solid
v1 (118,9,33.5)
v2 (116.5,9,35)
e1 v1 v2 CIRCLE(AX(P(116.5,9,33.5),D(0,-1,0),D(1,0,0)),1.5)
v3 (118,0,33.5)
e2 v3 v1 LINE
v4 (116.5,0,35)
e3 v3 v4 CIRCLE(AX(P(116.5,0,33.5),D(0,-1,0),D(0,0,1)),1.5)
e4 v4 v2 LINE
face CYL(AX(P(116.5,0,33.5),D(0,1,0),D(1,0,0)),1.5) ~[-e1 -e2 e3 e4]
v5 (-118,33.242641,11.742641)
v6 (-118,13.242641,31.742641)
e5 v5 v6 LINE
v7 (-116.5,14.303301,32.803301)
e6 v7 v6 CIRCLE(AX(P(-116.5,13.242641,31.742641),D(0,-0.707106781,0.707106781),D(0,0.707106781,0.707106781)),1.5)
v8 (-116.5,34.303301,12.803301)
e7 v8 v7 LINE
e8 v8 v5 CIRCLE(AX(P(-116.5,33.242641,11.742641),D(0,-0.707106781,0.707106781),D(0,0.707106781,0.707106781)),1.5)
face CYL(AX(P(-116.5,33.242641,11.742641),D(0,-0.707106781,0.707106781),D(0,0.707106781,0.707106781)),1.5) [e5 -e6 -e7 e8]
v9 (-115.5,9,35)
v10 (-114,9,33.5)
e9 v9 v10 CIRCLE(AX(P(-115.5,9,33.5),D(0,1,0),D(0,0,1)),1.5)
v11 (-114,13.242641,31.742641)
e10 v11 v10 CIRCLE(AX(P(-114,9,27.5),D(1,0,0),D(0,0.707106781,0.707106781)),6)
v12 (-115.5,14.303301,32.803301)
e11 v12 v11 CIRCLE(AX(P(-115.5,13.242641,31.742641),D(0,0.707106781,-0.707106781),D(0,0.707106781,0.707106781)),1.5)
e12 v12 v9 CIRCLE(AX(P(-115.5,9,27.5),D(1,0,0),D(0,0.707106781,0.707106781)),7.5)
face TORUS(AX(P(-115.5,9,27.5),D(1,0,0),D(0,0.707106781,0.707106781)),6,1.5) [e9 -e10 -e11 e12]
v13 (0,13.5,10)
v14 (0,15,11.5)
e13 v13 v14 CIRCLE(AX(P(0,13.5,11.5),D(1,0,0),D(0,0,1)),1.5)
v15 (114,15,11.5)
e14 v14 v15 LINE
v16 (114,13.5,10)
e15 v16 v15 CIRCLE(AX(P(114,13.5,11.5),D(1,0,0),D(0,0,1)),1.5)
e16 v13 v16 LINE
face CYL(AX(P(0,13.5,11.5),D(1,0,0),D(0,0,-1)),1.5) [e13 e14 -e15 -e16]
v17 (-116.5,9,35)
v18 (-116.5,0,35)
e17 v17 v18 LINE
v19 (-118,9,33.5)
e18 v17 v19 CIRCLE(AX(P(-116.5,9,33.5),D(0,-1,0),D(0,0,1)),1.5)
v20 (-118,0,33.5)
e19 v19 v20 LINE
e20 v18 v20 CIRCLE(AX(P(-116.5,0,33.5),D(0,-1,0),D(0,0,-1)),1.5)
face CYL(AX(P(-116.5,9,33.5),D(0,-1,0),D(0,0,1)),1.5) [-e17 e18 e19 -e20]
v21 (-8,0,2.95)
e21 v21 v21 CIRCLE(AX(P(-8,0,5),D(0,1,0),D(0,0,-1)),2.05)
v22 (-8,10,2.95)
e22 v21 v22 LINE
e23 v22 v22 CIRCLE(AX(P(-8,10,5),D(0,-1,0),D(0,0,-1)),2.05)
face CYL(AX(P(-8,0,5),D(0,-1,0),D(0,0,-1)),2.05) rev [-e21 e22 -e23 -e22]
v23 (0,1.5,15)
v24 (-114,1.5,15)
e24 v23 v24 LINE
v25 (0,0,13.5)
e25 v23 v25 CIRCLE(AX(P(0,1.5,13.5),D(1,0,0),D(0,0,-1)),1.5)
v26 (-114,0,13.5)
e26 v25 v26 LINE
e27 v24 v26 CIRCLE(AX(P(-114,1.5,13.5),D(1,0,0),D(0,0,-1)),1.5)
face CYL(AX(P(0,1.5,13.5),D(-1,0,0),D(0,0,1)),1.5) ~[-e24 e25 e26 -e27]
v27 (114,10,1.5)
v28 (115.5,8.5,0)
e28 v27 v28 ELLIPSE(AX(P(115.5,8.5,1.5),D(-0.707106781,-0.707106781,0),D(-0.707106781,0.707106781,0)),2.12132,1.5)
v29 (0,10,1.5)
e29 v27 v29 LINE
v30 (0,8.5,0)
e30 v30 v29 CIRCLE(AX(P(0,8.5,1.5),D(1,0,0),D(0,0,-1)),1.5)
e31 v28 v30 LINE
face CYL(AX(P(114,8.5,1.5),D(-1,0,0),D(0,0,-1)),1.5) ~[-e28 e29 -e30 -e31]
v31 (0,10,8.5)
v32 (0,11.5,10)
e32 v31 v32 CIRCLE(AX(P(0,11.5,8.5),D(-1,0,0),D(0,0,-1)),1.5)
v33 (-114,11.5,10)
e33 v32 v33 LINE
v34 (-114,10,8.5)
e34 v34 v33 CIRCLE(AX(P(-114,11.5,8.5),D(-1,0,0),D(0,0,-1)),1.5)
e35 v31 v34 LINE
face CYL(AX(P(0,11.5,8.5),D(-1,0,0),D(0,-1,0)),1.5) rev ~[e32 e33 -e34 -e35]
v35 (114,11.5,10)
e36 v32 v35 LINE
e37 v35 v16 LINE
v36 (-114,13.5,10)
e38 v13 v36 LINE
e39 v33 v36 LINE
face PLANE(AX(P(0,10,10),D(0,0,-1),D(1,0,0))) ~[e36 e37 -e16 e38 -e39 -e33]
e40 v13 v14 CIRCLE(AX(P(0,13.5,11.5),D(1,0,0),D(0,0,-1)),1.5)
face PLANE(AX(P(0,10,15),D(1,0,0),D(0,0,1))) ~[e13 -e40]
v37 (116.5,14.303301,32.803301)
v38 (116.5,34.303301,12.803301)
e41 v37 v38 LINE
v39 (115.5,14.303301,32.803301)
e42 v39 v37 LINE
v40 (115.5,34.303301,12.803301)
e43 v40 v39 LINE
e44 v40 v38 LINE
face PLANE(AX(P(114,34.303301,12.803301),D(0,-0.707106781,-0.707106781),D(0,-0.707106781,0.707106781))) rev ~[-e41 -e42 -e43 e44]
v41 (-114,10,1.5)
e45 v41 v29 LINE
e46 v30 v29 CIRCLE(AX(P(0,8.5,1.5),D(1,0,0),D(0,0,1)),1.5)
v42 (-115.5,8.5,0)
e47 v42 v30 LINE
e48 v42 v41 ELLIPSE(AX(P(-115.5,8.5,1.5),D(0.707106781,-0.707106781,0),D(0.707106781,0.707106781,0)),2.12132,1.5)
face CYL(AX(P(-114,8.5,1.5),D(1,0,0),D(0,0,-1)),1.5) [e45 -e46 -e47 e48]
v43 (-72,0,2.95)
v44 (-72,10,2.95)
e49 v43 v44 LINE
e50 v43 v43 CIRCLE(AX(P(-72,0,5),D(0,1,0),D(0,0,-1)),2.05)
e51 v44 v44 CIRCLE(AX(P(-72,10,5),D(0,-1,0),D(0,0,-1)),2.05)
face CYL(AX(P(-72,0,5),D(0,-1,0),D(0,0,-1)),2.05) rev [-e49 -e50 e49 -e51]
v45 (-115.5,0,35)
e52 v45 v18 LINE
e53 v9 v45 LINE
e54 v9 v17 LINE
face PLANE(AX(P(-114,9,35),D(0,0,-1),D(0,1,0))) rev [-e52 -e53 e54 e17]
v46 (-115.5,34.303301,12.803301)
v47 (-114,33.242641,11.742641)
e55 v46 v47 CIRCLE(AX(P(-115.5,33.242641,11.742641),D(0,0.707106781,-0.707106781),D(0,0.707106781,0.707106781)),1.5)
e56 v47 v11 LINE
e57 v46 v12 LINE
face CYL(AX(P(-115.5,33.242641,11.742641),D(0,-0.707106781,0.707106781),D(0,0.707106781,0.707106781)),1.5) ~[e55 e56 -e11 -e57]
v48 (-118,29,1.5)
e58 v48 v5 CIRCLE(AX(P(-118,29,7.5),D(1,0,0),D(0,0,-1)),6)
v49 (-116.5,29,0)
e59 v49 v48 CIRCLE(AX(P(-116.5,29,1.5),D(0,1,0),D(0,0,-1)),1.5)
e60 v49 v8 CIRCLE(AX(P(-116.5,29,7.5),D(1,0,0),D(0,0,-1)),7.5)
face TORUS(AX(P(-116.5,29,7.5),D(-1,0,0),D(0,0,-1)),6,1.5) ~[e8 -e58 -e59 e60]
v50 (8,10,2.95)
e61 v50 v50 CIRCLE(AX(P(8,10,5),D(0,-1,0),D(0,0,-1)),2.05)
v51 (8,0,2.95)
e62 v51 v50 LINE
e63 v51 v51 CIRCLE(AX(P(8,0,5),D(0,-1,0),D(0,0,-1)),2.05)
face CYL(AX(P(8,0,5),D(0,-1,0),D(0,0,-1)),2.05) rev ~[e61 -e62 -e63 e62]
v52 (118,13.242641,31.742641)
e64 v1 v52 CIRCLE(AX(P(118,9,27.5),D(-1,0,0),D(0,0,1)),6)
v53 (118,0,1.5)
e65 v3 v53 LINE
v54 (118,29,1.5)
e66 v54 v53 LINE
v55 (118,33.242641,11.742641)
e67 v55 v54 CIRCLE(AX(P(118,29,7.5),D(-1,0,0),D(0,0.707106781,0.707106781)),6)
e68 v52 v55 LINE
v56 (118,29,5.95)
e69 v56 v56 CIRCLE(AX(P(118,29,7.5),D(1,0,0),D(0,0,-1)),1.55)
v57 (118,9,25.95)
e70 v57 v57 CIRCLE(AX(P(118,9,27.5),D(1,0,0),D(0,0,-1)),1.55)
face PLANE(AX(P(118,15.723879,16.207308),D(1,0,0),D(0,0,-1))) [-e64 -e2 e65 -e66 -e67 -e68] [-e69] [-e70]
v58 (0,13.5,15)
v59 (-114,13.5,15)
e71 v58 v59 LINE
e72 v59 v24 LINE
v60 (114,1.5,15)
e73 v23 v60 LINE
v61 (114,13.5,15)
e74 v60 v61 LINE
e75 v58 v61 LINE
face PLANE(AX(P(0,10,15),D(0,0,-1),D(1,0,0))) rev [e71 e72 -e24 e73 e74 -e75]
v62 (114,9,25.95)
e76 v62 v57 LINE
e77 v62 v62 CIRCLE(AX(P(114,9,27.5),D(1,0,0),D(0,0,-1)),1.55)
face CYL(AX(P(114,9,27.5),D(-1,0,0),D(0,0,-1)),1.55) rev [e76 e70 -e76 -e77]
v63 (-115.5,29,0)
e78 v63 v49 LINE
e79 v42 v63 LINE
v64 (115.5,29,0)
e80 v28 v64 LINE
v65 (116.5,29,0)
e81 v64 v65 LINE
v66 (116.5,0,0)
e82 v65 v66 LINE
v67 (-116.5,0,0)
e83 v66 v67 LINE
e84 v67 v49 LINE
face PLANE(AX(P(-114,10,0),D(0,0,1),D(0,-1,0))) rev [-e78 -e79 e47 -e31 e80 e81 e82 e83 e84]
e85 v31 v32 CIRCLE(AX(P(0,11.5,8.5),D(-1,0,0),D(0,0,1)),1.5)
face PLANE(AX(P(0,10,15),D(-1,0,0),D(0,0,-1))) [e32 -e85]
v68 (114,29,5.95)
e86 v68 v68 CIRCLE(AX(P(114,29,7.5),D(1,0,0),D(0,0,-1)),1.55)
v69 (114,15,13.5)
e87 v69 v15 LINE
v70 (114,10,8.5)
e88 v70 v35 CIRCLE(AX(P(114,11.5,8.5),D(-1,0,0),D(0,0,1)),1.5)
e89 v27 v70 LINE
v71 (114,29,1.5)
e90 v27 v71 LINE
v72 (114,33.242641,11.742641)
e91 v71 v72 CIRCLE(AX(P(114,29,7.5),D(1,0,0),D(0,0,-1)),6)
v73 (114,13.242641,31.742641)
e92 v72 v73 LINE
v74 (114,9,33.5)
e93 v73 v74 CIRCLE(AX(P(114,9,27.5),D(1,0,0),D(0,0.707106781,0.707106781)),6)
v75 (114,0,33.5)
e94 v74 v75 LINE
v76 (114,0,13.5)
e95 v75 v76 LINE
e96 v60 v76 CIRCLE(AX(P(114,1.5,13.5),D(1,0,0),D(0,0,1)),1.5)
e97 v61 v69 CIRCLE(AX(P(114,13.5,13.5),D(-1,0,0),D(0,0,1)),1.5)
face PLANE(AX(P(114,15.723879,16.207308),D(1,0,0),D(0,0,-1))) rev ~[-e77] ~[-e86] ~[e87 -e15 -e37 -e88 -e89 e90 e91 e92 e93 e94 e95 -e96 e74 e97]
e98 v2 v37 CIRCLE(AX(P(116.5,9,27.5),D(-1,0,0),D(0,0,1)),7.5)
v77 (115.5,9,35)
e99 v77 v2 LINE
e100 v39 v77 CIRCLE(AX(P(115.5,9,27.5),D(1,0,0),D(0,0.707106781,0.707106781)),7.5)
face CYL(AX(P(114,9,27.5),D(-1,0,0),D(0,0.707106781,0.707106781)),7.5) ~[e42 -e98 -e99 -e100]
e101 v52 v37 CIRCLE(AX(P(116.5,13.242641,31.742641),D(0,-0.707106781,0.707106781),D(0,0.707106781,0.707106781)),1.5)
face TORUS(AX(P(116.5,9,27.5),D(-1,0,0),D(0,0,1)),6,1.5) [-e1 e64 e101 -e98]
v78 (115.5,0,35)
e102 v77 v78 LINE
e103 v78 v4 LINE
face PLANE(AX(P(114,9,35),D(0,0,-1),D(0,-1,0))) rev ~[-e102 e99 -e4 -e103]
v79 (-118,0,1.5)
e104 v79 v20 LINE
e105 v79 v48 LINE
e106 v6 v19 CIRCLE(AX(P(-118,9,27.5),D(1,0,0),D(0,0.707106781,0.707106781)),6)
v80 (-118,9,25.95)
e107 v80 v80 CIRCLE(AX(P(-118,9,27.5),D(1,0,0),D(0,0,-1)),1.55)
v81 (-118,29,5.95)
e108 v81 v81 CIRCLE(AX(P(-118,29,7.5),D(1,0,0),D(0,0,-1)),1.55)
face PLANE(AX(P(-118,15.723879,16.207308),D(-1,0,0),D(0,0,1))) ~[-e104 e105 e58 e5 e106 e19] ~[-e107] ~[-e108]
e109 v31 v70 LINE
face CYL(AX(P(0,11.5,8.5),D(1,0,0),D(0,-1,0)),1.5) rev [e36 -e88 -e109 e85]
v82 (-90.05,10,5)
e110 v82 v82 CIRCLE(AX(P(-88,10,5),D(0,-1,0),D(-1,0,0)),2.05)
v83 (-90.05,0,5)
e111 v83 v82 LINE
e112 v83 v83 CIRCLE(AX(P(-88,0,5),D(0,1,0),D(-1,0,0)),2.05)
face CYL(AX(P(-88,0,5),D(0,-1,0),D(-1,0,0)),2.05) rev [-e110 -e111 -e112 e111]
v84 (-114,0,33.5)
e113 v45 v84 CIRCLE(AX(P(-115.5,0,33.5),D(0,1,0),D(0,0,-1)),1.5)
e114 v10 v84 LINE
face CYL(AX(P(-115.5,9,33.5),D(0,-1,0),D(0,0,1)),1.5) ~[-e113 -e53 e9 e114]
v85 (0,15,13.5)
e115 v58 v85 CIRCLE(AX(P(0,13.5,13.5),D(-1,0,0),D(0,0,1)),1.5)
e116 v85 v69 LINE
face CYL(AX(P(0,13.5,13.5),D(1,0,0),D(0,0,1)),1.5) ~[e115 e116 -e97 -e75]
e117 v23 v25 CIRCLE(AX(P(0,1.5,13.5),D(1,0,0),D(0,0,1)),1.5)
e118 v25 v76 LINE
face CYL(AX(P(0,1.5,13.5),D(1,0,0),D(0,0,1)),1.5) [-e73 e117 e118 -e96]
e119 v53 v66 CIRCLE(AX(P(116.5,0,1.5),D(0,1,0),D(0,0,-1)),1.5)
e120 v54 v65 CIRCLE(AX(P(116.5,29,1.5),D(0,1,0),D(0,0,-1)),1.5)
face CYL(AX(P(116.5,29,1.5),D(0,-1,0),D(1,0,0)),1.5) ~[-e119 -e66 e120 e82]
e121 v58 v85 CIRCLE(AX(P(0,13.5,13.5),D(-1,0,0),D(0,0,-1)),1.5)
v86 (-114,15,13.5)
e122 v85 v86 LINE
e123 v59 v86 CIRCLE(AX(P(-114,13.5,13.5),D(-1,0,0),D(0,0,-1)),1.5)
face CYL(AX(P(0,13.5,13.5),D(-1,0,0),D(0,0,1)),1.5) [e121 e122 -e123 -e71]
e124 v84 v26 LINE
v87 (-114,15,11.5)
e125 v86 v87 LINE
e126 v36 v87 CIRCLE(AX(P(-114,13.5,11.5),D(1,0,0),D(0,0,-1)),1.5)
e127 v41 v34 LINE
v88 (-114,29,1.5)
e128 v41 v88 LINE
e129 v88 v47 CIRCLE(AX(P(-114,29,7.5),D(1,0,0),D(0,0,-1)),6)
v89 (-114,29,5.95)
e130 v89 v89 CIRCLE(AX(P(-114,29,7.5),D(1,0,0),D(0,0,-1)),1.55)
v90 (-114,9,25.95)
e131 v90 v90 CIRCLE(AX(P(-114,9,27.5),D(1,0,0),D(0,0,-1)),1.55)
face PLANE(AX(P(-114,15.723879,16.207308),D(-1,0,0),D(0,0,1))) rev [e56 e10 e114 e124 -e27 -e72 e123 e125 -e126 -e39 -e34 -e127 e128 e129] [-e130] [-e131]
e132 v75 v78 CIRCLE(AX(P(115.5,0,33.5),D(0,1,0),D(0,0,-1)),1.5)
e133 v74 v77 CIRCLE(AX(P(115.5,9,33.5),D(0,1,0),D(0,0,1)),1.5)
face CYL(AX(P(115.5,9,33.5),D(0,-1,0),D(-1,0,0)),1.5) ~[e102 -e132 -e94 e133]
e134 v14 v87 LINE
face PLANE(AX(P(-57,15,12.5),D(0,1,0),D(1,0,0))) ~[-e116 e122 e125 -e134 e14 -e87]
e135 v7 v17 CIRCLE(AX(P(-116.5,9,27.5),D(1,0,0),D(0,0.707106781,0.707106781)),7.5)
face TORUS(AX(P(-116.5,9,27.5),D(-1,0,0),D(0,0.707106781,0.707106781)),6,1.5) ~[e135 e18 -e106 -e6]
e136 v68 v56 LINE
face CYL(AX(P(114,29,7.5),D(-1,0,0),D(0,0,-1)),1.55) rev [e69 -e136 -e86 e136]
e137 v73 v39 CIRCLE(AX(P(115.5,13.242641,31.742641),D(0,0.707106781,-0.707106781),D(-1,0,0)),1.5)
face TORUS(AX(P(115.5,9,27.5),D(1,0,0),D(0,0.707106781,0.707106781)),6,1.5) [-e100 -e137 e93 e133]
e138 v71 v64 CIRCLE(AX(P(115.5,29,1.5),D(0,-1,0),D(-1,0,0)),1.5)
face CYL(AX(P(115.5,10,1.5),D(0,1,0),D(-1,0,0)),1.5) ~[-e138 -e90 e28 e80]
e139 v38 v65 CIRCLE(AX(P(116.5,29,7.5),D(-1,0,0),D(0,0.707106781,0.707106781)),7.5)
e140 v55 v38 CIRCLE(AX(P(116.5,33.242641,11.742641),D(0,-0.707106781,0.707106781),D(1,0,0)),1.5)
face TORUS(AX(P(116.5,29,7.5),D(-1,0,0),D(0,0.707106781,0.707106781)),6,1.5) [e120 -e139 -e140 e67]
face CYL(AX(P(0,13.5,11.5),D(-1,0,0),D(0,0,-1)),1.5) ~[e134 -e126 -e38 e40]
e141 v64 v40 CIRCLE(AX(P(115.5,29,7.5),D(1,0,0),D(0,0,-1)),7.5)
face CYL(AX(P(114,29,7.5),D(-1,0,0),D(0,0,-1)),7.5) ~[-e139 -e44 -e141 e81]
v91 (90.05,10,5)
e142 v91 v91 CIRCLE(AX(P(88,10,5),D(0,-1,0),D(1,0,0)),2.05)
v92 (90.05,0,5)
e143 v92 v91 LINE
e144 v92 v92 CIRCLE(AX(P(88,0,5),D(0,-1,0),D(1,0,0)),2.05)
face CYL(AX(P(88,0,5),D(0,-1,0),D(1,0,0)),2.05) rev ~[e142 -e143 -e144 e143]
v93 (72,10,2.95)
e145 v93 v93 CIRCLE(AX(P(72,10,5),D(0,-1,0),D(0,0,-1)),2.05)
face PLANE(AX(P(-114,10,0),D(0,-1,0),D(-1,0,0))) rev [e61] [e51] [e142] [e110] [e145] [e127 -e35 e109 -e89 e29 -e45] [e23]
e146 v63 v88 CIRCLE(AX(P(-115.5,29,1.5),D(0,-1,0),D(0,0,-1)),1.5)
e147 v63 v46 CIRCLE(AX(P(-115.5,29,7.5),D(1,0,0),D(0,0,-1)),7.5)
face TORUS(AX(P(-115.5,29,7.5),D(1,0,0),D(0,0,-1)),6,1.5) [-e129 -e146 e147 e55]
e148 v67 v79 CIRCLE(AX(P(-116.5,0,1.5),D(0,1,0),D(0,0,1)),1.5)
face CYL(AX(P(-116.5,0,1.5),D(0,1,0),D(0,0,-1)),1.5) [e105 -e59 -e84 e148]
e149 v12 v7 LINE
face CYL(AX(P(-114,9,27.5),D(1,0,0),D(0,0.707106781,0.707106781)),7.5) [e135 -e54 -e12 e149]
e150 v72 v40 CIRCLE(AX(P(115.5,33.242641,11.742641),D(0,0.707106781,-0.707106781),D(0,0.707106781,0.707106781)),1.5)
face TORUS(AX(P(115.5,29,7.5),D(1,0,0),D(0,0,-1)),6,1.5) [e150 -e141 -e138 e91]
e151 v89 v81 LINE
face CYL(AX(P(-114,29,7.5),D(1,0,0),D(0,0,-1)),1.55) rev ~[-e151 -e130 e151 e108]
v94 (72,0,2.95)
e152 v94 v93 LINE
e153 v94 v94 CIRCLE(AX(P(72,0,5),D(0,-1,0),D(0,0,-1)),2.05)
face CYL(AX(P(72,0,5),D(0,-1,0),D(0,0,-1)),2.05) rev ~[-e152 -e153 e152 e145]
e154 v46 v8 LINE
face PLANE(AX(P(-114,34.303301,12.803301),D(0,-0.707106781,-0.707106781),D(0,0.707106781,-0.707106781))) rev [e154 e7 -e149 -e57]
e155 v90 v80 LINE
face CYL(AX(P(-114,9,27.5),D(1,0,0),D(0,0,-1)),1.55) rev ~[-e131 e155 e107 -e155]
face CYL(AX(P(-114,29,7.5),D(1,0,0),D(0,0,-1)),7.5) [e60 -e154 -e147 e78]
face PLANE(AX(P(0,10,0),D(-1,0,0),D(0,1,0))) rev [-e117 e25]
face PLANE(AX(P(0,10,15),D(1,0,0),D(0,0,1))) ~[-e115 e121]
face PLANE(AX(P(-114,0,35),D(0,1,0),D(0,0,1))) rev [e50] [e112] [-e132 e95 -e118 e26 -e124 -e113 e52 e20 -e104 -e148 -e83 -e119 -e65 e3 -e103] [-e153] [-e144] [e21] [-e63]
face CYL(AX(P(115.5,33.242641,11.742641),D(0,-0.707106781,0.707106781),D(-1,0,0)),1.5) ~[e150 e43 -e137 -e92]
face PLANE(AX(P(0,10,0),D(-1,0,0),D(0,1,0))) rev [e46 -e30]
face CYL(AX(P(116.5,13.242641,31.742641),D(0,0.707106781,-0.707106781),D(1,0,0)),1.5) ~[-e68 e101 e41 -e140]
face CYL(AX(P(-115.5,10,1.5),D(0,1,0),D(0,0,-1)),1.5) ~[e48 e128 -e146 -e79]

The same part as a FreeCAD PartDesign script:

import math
import FreeCAD as App
import Part
import Sketcher
Q = App.Units.Quantity


def edges_at(feature, points):
    """Names of the edges that pass closest to the given points."""
    edges = feature.Shape.Edges
    near = lambda p: min(range(len(edges)), key=lambda i: edges[i].distToShape(Part.Vertex(*p))[0])
    return sorted({f"Edge{near(p) + 1}" for p in points})


def add_polygon(sketch, points):
    """Adds a closed chain of lines whose ends are joined by coincident constraints."""
    first, n = sketch.GeometryCount, len(points)
    for a, b in zip(points, points[1:] + points[:1]):
        sketch.addGeometry(Part.LineSegment(App.Vector(*a, 0), App.Vector(*b, 0)), False)
    for i in range(n):
        sketch.addConstraint(Sketcher.Constraint("Coincident", first + i, 2, first + (i + 1) % n, 1))

doc = App.newDocument("Part")
body = doc.addObject("PartDesign::Body", "Body")

# Sketch on XY plane
sketch1 = body.newObject("Sketcher::SketchObject", "Sketch")
sketch1.AttachmentSupport = (doc.getObject("XY_Plane"), [""])
sketch1.MapMode = "FlatFace"
add_polygon(sketch1, [(0, 10), (0, 0), (114, 0), (114, 10)])  # lines 0-3
sketch1.addConstraint(Sketcher.Constraint("Vertical", 0))
sketch1.addConstraint(Sketcher.Constraint("Horizontal", 1))
sketch1.addConstraint(Sketcher.Constraint("Vertical", 2))
sketch1.addConstraint(Sketcher.Constraint("Horizontal", 3))
sketch1.addConstraint(Sketcher.Constraint("Coincident", 0, 2, -1, 1))
sketch1.addConstraint(Sketcher.Constraint("DistanceX", 1, 1, 1, 2, Q("114 mm")))
sketch1.addConstraint(Sketcher.Constraint("DistanceY", 0, 2, 0, 1, Q("10 mm")))
pad1 = body.newObject("PartDesign::Pad", "Pad")
pad1.Profile = sketch1
pad1.Length = 15

# Sketch on YZ plane
sketch2 = body.newObject("Sketcher::SketchObject", "Sketch001")
sketch2.AttachmentSupport = (doc.getObject("YZ_Plane"), [""])
sketch2.MapMode = "FlatFace"
sketch2.AttachmentOffset = App.Placement(App.Vector(0, 0, 114), App.Rotation())
sketch2.addGeometry(Part.ArcOfCircle(Part.Circle(App.Vector(29, 7.5, 0), App.Vector(0, 0, 1), 7.5), math.radians(-90), math.radians(45)), False)
sketch2.addGeometry(Part.LineSegment(App.Vector(34.3, 12.8, 0), App.Vector(14.3, 32.8, 0)), False)
sketch2.addGeometry(Part.ArcOfCircle(Part.Circle(App.Vector(9, 27.5, 0), App.Vector(0, 0, 1), 7.5), math.radians(45), math.radians(90)), False)
sketch2.addGeometry(Part.LineSegment(App.Vector(9, 35, 0), App.Vector(0, 35, 0)), False)
sketch2.addGeometry(Part.LineSegment(App.Vector(0, 35, 0), App.Vector(0, 0, 0)), False)
sketch2.addGeometry(Part.LineSegment(App.Vector(0, 0, 0), App.Vector(29, 0, 0)), False)
sketch2.addGeometry(Part.Circle(App.Vector(9, 27.5, 0), App.Vector(0, 0, 1), 1.6), False)
sketch2.addGeometry(Part.Circle(App.Vector(29, 7.5, 0), App.Vector(0, 0, 1), 1.6), False)
sketch2.addConstraint(Sketcher.Constraint("Tangent", 0, 2, 1, 1))
sketch2.addConstraint(Sketcher.Constraint("Tangent", 1, 2, 2, 1))
sketch2.addConstraint(Sketcher.Constraint("Tangent", 2, 2, 3, 1))
sketch2.addConstraint(Sketcher.Constraint("Coincident", 3, 2, 4, 1))
sketch2.addConstraint(Sketcher.Constraint("Coincident", 4, 2, 5, 1))
sketch2.addConstraint(Sketcher.Constraint("Tangent", 5, 2, 0, 1))
sketch2.addConstraint(Sketcher.Constraint("Horizontal", 3))
sketch2.addConstraint(Sketcher.Constraint("Vertical", 4))
sketch2.addConstraint(Sketcher.Constraint("Horizontal", 5))
sketch2.addConstraint(Sketcher.Constraint("Coincident", 4, 2, -1, 1))
sketch2.addConstraint(Sketcher.Constraint("Coincident", 6, 3, 2, 3))
sketch2.addConstraint(Sketcher.Constraint("Coincident", 7, 3, 0, 3))
sketch2.addConstraint(Sketcher.Constraint("Equal", 0, 2))
sketch2.addConstraint(Sketcher.Constraint("Equal", 6, 7))
sketch2.addConstraint(Sketcher.Constraint("Diameter", 6, Q("3.1 mm")))
sketch2.addConstraint(Sketcher.Constraint("Radius", 0, Q("7.5 mm")))
sketch2.addConstraint(Sketcher.Constraint("DistanceX", 3, 2, 3, 1, Q("9 mm")))
sketch2.addConstraint(Sketcher.Constraint("DistanceX", 5, 1, 5, 2, Q("29 mm")))
sketch2.addConstraint(Sketcher.Constraint("DistanceY", 4, 2, 4, 1, Q("35 mm")))
pad2 = body.newObject("PartDesign::Pad", "Pad001")
pad2.Profile = sketch2
pad2.Length = 4

# Sketch on XZ plane
sketch3 = body.newObject("Sketcher::SketchObject", "Sketch002")
sketch3.AttachmentSupport = (doc.getObject("XZ_Plane"), [""])
sketch3.MapMode = "FlatFace"
sketch3.addGeometry(Part.Circle(App.Vector(8, 5, 0), App.Vector(0, 0, 1), 2), False)
sketch3.addGeometry(Part.Circle(App.Vector(72, 5, 0), App.Vector(0, 0, 1), 2), False)
sketch3.addGeometry(Part.Circle(App.Vector(88, 5, 0), App.Vector(0, 0, 1), 2), False)
sketch3.addConstraint(Sketcher.Constraint("Equal", 0, 1))
sketch3.addConstraint(Sketcher.Constraint("Equal", 1, 2))
sketch3.addConstraint(Sketcher.Constraint("Horizontal", 0, 3, 1, 3))
sketch3.addConstraint(Sketcher.Constraint("Horizontal", 1, 3, 2, 3))
sketch3.addConstraint(Sketcher.Constraint("Diameter", 0, Q("4.1 mm")))
sketch3.addConstraint(Sketcher.Constraint("DistanceX", -1, 1, 0, 3, Q("8 mm")))
sketch3.addConstraint(Sketcher.Constraint("DistanceY", -1, 1, 0, 3, Q("5 mm")))
sketch3.addConstraint(Sketcher.Constraint("DistanceX", -1, 1, 1, 3, Q("72 mm")))
sketch3.addConstraint(Sketcher.Constraint("DistanceX", -1, 1, 2, 3, Q("88 mm")))
pocket1 = body.newObject("PartDesign::Pocket", "Pocket")
pocket1.Profile = sketch3
pocket1.Type = "ThroughAll"

# Sketch on XZ plane
sketch4 = body.newObject("Sketcher::SketchObject", "Sketch003")
sketch4.AttachmentSupport = (doc.getObject("XZ_Plane"), [""])
sketch4.MapMode = "FlatFace"
sketch4.AttachmentOffset = App.Placement(App.Vector(0, 0, -10), App.Rotation())
add_polygon(sketch4, [(0, 10), (0, 15), (114, 15), (114, 10)])  # lines 0-3
sketch4.addConstraint(Sketcher.Constraint("Vertical", 0))
sketch4.addConstraint(Sketcher.Constraint("Horizontal", 1))
sketch4.addConstraint(Sketcher.Constraint("Vertical", 2))
sketch4.addConstraint(Sketcher.Constraint("Horizontal", 3))
sketch4.addConstraint(Sketcher.Constraint("PointOnObject", 0, 2, -2))
sketch4.addConstraint(Sketcher.Constraint("DistanceX", 1, 1, 1, 2, Q("114 mm")))
sketch4.addConstraint(Sketcher.Constraint("DistanceY", 0, 1, 0, 2, Q("5 mm")))
sketch4.addConstraint(Sketcher.Constraint("DistanceY", -1, 1, 0, 2, Q("15 mm")))
pad3 = body.newObject("PartDesign::Pad", "Pad002")
pad3.Profile = sketch4
pad3.Length = 5
pad3.Reversed = True
doc.recompute()

fillet = body.newObject("PartDesign::Fillet", "Fillet")
fillet.Base = (pad3, edges_at(pad3, [
    (114, 35.929, 4.63),
    (114, 24.303, 22.803),
    (114, 11.87, 34.429),
    (114, 4.5, 35),
    (118, 14.5, 0),
    (114, 19.5, 0),
    (118, 35.929, 4.63),
    (118, 24.303, 22.803),
    (118, 11.87, 34.429),
    (118, 4.5, 35),
    (57, 0, 15),
    (57, 15, 10),
    (57, 15, 15),
    (57, 10, 10),
    (57, 10, 0),
]))
fillet.Radius = 1.5
doc.recompute()

mirrored = body.newObject("PartDesign::Mirrored", "Mirrored")
mirrored.Originals = [pad1, pad2, pocket1, pad3]
mirrored.MirrorPlane = (doc.getObject("YZ_Plane"), [""])
body.Tip = mirrored
doc.recompute()

fillet2 = body.newObject("PartDesign::Fillet", "Fillet001")
fillet2.Base = (mirrored, edges_at(mirrored, [
    (-114, 35.929, 4.63),
    (-114, 24.303, 22.803),
    (-114, 11.87, 34.429),
    (-114, 4.5, 35),
    (-118, 14.5, 0),
    (-114, 19.5, 0),
    (-118, 35.929, 4.63),
    (-118, 24.303, 22.803),
    (-118, 11.87, 34.429),
    (-118, 4.5, 35),
    (-57, 0, 15),
    (-57, 15, 10),
    (-57, 15, 15),
    (-57, 10, 10),
    (-57, 10, 0),
]))
fillet2.Radius = 1.5

doc.recompute()
